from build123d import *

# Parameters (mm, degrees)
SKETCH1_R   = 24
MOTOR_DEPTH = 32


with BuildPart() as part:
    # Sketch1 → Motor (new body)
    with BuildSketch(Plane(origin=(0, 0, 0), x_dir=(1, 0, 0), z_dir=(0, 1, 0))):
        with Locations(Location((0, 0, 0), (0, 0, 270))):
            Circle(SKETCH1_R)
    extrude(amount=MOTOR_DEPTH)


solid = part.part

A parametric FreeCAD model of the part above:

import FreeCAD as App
import Part
import Sketcher

V = App.Vector

doc = App.newDocument("Part")
params = doc.addObject("Spreadsheet::Sheet", "Params")
for row, (alias, value) in enumerate([
    ("sketch1_diameter", "48 mm"),
    ("pad1_length", "32 mm"),
], start=1):
    params.set(f"A{row}", alias)
    params.set(f"B{row}", "=" + value)
    params.setAlias(f"B{row}", alias)

body = doc.addObject("PartDesign::Body", "Body")

# Sketch on XZ plane
sketch1 = body.newObject("Sketcher::SketchObject", "Sketch")
sketch1.AttachmentSupport = (doc.getObject("XZ_Plane"), [""])
sketch1.MapMode = "FlatFace"
sketch1.addGeometry(Part.Circle(V(0, 0, 0), V(0, 0, 1), 24), False)
sketch1.addConstraint(Sketcher.Constraint("Coincident", 0, 3, -1, 1))
sketch1.addConstraint(Sketcher.Constraint("Diameter", 0, 48.0))
sketch1.setExpression("Constraints[1]", "Params.sketch1_diameter")
pad1 = body.newObject("PartDesign::Pad", "Pad")
pad1.Profile = sketch1
pad1.setExpression("Length", "Params.pad1_length")
pad1.Reversed = True

doc.recompute()
